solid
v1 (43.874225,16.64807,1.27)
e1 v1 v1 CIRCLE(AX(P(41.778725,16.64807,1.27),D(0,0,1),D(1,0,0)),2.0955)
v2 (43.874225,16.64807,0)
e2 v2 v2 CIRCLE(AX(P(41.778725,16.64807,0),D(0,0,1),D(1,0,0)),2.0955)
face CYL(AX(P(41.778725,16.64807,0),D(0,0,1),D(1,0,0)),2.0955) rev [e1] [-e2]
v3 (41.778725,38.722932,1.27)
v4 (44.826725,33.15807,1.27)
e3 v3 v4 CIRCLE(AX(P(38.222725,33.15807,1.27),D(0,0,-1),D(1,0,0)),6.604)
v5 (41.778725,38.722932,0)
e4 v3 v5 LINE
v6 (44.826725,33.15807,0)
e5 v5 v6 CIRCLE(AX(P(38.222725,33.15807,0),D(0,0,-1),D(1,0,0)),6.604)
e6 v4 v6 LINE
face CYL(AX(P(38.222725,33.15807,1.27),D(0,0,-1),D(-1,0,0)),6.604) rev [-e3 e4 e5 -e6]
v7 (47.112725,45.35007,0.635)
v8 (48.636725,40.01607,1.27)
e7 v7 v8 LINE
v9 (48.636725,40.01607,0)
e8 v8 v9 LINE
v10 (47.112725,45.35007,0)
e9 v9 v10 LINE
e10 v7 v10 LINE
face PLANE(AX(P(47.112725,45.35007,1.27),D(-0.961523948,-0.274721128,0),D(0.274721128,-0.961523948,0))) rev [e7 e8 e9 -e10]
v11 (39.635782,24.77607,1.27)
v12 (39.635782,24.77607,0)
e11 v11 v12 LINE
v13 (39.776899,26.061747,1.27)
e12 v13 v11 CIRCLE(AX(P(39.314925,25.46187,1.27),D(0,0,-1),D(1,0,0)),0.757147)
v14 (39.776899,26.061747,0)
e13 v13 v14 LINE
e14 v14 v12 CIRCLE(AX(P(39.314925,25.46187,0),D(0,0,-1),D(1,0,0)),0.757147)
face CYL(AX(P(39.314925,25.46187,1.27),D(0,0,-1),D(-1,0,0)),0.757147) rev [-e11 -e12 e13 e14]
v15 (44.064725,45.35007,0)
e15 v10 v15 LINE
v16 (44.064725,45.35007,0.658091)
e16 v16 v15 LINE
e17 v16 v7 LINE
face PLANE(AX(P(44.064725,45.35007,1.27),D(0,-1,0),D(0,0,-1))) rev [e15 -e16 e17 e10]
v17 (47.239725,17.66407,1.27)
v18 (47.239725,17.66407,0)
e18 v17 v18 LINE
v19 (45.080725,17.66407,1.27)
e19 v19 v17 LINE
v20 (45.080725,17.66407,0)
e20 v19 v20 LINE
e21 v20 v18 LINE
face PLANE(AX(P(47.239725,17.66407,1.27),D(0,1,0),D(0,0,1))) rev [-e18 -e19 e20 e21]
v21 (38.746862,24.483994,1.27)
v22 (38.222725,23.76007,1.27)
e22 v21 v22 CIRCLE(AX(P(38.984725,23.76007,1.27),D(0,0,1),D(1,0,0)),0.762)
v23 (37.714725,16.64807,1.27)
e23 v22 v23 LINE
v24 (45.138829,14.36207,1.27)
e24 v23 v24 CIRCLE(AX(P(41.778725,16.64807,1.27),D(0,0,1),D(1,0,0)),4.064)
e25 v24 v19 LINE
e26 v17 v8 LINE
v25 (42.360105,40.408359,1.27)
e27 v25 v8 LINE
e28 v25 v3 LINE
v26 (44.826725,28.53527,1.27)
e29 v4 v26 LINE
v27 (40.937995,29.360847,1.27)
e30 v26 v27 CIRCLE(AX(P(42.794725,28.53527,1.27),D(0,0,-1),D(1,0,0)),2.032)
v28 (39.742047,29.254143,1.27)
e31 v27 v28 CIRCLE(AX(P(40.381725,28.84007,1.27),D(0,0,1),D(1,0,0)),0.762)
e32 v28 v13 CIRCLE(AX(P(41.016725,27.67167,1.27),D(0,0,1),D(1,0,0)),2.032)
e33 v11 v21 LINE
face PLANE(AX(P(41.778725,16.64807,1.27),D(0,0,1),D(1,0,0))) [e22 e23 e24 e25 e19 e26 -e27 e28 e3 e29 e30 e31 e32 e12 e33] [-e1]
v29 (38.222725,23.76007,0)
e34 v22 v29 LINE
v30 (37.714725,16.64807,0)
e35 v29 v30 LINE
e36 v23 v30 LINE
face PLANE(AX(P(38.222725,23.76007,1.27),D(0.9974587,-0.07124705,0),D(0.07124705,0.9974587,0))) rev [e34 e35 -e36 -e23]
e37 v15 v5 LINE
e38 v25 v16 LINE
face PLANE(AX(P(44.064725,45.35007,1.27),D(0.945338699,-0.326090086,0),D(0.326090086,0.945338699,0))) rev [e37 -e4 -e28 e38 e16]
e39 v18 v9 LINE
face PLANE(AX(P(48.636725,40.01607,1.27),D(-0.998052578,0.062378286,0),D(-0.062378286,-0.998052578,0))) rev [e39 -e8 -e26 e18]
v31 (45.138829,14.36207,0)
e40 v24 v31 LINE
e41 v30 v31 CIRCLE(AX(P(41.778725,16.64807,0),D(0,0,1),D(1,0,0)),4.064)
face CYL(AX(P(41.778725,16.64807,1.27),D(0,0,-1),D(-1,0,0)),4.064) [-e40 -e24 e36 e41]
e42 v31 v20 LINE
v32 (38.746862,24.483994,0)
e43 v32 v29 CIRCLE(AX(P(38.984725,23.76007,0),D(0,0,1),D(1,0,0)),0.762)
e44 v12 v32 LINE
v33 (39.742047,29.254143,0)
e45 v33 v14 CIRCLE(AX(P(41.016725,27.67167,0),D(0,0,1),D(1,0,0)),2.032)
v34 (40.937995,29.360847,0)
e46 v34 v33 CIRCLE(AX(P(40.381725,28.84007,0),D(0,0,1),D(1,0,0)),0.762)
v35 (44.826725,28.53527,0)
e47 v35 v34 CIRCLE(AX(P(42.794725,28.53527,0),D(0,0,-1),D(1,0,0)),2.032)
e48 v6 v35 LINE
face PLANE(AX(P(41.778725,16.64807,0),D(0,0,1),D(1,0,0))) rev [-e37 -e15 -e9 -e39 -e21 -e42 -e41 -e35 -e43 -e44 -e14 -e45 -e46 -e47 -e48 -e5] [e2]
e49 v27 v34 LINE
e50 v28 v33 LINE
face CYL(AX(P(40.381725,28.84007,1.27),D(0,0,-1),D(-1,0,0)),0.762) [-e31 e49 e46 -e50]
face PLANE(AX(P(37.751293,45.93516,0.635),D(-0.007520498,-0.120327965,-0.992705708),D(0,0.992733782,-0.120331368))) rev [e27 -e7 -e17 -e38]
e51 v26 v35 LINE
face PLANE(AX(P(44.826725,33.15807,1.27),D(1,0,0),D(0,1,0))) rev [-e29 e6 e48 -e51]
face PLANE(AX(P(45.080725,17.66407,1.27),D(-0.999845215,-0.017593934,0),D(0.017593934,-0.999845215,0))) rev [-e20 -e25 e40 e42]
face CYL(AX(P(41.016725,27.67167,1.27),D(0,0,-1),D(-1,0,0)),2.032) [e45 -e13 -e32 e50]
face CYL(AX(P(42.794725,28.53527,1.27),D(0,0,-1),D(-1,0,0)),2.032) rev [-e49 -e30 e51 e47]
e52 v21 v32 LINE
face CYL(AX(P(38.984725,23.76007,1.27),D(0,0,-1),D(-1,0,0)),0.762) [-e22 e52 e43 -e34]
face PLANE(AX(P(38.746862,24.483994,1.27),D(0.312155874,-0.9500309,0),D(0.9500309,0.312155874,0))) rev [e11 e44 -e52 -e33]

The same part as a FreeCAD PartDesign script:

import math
import FreeCAD as App
import Part
import Sketcher
Q = App.Units.Quantity


def add_polygon(sketch, points):
    """Adds a closed chain of lines whose ends are joined by coincident constraints."""
    first, n = sketch.GeometryCount, len(points)
    for a, b in zip(points, points[1:] + points[:1]):
        sketch.addGeometry(Part.LineSegment(App.Vector(*a, 0), App.Vector(*b, 0)), False)
    for i in range(n):
        sketch.addConstraint(Sketcher.Constraint("Coincident", first + i, 2, first + (i + 1) % n, 1))

doc = App.newDocument("Part")
params = doc.addObject("Spreadsheet::Sheet", "Params")
for row, (alias, value) in enumerate([
    ("sketch1_radius", "0.26 in"),
    ("sketch1_radius2", "0.08 in"),
    ("sketch1_radius3", "0.03 in"),
    ("sketch1_radius4", "0.16 in"),
    ("sketch1_width", "0.12 in"),
    ("pad1_length", "0.05 in"),
    ("sketch2_diameter", "0.165 in"),
    ("sketch3_width", "0.025 in"),
], start=1):
    params.set(f"A{row}", alias)
    params.set(f"B{row}", "=" + value)
    params.setAlias(f"B{row}", alias)

body = doc.addObject("PartDesign::Body", "Body")

# Sketch on XY plane
sketch1 = doc.addObject("Sketcher::SketchObject", "Sketch")
body.addObject(sketch1)
sketch1.AttachmentSupport = (doc.XY_Plane, [""])
sketch1.MapMode = "FlatFace"
sketch1.addGeometry([
    Part.LineSegment(App.Vector(47.2, 17.7, 0), App.Vector(48.6, 40, 0)),  # 0
    Part.LineSegment(App.Vector(48.6, 40, 0), App.Vector(47.1, 45.4, 0)),  # 1
    Part.LineSegment(App.Vector(47.1, 45.4, 0), App.Vector(44.1, 45.4, 0)),  # 2
    Part.LineSegment(App.Vector(44.1, 45.4, 0), App.Vector(41.8, 38.7, 0)),  # 3
    Part.ArcOfCircle(Part.Circle(App.Vector(38.2, 33.2, 0), App.Vector(0, 0, 1), 6.6), math.radians(0), math.radians(57)),  # 4
    Part.LineSegment(App.Vector(44.8, 33.2, 0), App.Vector(44.8, 28.5, 0)),  # 5
    Part.ArcOfCircle(Part.Circle(App.Vector(42.8, 28.5, 0), App.Vector(0, 0, 1), 2), math.radians(156), math.radians(360)),  # 6
    Part.ArcOfCircle(Part.Circle(App.Vector(40.4, 28.8, 0), App.Vector(0, 0, 1), 0.8), math.radians(43), math.radians(147)),  # 7
    Part.ArcOfCircle(Part.Circle(App.Vector(41, 27.7, 0), App.Vector(0, 0, 1), 2), math.radians(129), math.radians(232)),  # 8
    Part.ArcOfCircle(Part.Circle(App.Vector(39.3, 25.5, 0), App.Vector(0, 0, 1), 0.8), math.radians(-65), math.radians(52)),  # 9
    Part.LineSegment(App.Vector(39.6, 24.8, 0), App.Vector(38.7, 24.5, 0)),  # 10
    Part.ArcOfCircle(Part.Circle(App.Vector(39, 23.8, 0), App.Vector(0, 0, 1), 0.8), math.radians(108), math.radians(180)),  # 11
    Part.LineSegment(App.Vector(38.2, 23.8, 0), App.Vector(37.7, 16.6, 0)),  # 12
    Part.ArcOfCircle(Part.Circle(App.Vector(41.8, 16.6, 0), App.Vector(0, 0, 1), 4.1), math.radians(180), math.radians(326)),  # 13
    Part.LineSegment(App.Vector(45.1, 14.4, 0), App.Vector(45.1, 17.7, 0)),  # 14
    Part.LineSegment(App.Vector(45.1, 17.7, 0), App.Vector(47.2, 17.7, 0)),  # 15
], False)
sketch1.addConstraint([
    Sketcher.Constraint("Coincident", 0, 2, 1, 1),
    Sketcher.Constraint("Coincident", 1, 2, 2, 1),
    Sketcher.Constraint("Coincident", 2, 2, 3, 1),
    Sketcher.Constraint("Coincident", 3, 2, 4, 2),
    Sketcher.Constraint("Tangent", 4, 1, 5, 1),
    Sketcher.Constraint("Tangent", 5, 2, 6, 2),
    Sketcher.Constraint("Coincident", 6, 1, 7, 1),
    Sketcher.Constraint("Coincident", 7, 2, 8, 1),
    Sketcher.Constraint("Tangent", 8, 2, 9, 2),
    Sketcher.Constraint("Coincident", 9, 1, 10, 1),
    Sketcher.Constraint("Tangent", 10, 2, 11, 1),
    Sketcher.Constraint("Coincident", 11, 2, 12, 1),
    Sketcher.Constraint("Coincident", 12, 2, 13, 1),
    Sketcher.Constraint("Coincident", 13, 2, 14, 1),
    Sketcher.Constraint("Coincident", 14, 2, 15, 1),
    Sketcher.Constraint("Coincident", 15, 2, 0, 1),
    Sketcher.Constraint("Horizontal", 2),
    Sketcher.Constraint("Vertical", 5),
    Sketcher.Constraint("Horizontal", 15),
    Sketcher.Constraint("Equal", 6, 8),
    Sketcher.Constraint("Equal", 7, 11),
    Sketcher.Constraint("Horizontal", 13, 3, 12, 2),
    Sketcher.Constraint("Vertical", 13, 3, 3, 2),
    Sketcher.Constraint("Vertical", 4, 3, 11, 2),
    Sketcher.Constraint("Radius", 4, Q("0.26 in")),
    Sketcher.Constraint("Radius", 6, Q("0.08 in")),
    Sketcher.Constraint("Radius", 7, Q("0.03 in")),
    Sketcher.Constraint("Radius", 13, Q("0.16 in")),
    Sketcher.Constraint("DistanceX", 2, 2, 2, 1, Q("0.12 in")),
    Sketcher.Constraint("DistanceY", 11, 3, 7, 3, Q("0.2 in")),
    Sketcher.Constraint("DistanceX", 8, 3, 0, 2, Q("0.3 in")),
    Sketcher.Constraint("DistanceX", 15, 1, 15, 2, Q("0.085 in")),
    Sketcher.Constraint("DistanceY", 5, 2, 5, 1, Q("0.182 in")),
    Sketcher.Constraint("DistanceY", 7, 3, 4, 3, Q("0.17 in")),
    Sketcher.Constraint("DistanceX", 8, 3, 6, 3, Q("0.07 in")),
    Sketcher.Constraint("DistanceX", 11, 3, 13, 3, Q("0.11 in")),
    Sketcher.Constraint("DistanceY", 13, 3, 11, 3, Q("0.28 in")),
    Sketcher.Constraint("DistanceY", 4, 3, 0, 2, Q("0.27 in")),
    Sketcher.Constraint("DistanceX", 1, 2, 0, 2, Q("0.06 in")),
    Sketcher.Constraint("DistanceY", 0, 2, 1, 2, Q("0.21 in")),
    Sketcher.Constraint("DistanceY", 11, 3, 9, 1, Q("0.04 in")),
    Sketcher.Constraint("DistanceY", 11, 2, 9, 1, Q("0.04 in")),
    Sketcher.Constraint("DistanceY", 13, 2, 13, 3, Q("0.09 in")),
    Sketcher.Constraint("DistanceY", 13, 2, 14, 2, Q("0.13 in")),
    Sketcher.Constraint("DistanceX", 13, 3, 14, 2, Q("0.13 in")),
    Sketcher.Constraint("DistanceX", 7, 3, 6, 3, Q("0.095 in")),
    Sketcher.Constraint("DistanceY", 8, 3, 7, 3, Q("0.046 in")),
    Sketcher.Constraint("DistanceX", 9, 3, 8, 3, Q("0.067 in")),
    Sketcher.Constraint("DistanceY", 9, 3, 8, 3, Q("0.087 in")),
    Sketcher.Constraint("DistanceX", -1, 1, 8, 2, 39.776899),
    Sketcher.Constraint("DistanceY", -1, 1, 4, 3, 33.15807),
])
sketch1.setExpression("Constraints[24]", "Params.sketch1_radius")
sketch1.setExpression("Constraints[25]", "Params.sketch1_radius2")
sketch1.setExpression("Constraints[26]", "Params.sketch1_radius3")
sketch1.setExpression("Constraints[27]", "Params.sketch1_radius4")
sketch1.setExpression("Constraints[28]", "Params.sketch1_width")
pad1 = doc.addObject("PartDesign::Pad", "Pad")
body.addObject(pad1)
pad1.Profile = sketch1
pad1.setExpression("Length", "Params.pad1_length")

# Sketch on XY plane
sketch2 = doc.addObject("Sketcher::SketchObject", "Sketch001")
body.addObject(sketch2)
sketch2.AttachmentSupport = (doc.XY_Plane, [""])
sketch2.MapMode = "FlatFace"
sketch2.AttachmentOffset = App.Placement(App.Vector(0, 0, 0.05 * 25.4), App.Rotation())
sketch2.addGeometry(Part.Circle(App.Vector(41.8, 16.6, 0), App.Vector(0, 0, 1), 2.1), False)
sketch2.addConstraint([
    Sketcher.Constraint("Diameter", 0, Q("0.165 in")),
    Sketcher.Constraint("DistanceY", -1, 1, 0, 3, 16.64807),
    Sketcher.Constraint("DistanceX", -1, 1, 0, 3, 41.778725),
])
sketch2.setExpression("Constraints[0]", "Params.sketch2_diameter")
pocket1 = doc.addObject("PartDesign::Pocket", "Pocket")
body.addObject(pocket1)
pocket1.Profile = sketch2
pocket1.Type = "ThroughAll"

# Sketch on an angled plane
sketch3 = doc.addObject("Sketcher::SketchObject", "Sketch002")
body.addObject(sketch3)
sketch3.Placement = App.Placement(App.Vector(45.956204, -2.872263, 0), App.Rotation(App.Vector(0, 0, -1), App.Vector(0.062378286, 0.998052578, 0), App.Vector(0.998052578, -0.062378286, 0), "ZXY"))
add_polygon(sketch3, [(-1.3, 43), (-0.6, 48.2), (-1.3, 48.2)])  # lines 0-2
sketch3.addConstraint([
    Sketcher.Constraint("Horizontal", 1),
    Sketcher.Constraint("Vertical", 2),
    Sketcher.Constraint("DistanceX", 1, 2, 1, 1, Q("0.025 in")),
    Sketcher.Constraint("DistanceX", 1, 2, -1, 1, Q("0.05 in")),
    Sketcher.Constraint("DistanceY", 2, 2, 2, 1, 5.228548),
    Sketcher.Constraint("DistanceY", -1, 1, 0, 2, 48.200566),
])
sketch3.setExpression("Constraints[5]", "Params.sketch3_width")
pocket2 = doc.addObject("PartDesign::Pocket", "Pocket001")
body.addObject(pocket2)
pocket2.Profile = sketch3
pocket2.Type = "ThroughAll"

doc.recompute()
